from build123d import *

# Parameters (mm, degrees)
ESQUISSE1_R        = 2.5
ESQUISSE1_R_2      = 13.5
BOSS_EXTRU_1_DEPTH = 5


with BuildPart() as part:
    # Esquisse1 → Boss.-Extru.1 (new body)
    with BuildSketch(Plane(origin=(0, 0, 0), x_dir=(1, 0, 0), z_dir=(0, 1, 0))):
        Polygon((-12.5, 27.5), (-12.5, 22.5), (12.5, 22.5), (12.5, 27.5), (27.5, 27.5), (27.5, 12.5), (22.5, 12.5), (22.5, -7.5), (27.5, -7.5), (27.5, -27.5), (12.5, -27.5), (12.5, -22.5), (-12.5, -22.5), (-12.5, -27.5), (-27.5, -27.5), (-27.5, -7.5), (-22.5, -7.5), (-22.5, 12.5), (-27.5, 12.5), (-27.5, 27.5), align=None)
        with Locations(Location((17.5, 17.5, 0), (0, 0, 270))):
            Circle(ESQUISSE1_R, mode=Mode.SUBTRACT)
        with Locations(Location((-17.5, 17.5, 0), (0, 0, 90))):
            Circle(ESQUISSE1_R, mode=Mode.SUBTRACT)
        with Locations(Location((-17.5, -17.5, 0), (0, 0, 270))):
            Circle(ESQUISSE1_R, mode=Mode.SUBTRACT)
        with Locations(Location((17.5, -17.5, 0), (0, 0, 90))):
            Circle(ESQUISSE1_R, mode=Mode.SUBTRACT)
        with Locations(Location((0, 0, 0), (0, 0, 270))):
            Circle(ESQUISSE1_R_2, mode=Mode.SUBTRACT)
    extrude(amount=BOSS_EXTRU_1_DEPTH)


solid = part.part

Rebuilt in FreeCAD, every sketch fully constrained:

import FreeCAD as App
import Part
import Sketcher

doc = App.newDocument("Part")
body = doc.addObject("PartDesign::Body", "Body")

# Sketch on XZ plane
sketch1 = body.newObject("Sketcher::SketchObject", "Sketch")
sketch1.AttachmentSupport = (doc.getObject("XZ_Plane"), [""])
sketch1.MapMode = "FlatFace"
sketch1.addGeometry([
    Part.LineSegment(App.Vector(-12.5, -22.5, 0), App.Vector(-12.5, -27.5, 0)),  # 0
    Part.LineSegment(App.Vector(-12.5, -27.5, 0), App.Vector(-27.5, -27.5, 0)),  # 1
    Part.LineSegment(App.Vector(-27.5, -27.5, 0), App.Vector(-27.5, -12.5, 0)),  # 2
    Part.LineSegment(App.Vector(-27.5, -12.5, 0), App.Vector(-22.5, -12.5, 0)),  # 3
    Part.LineSegment(App.Vector(-22.5, -12.5, 0), App.Vector(-22.5, 7.5, 0)),  # 4
    Part.LineSegment(App.Vector(-22.5, 7.5, 0), App.Vector(-27.5, 7.5, 0)),  # 5
    Part.LineSegment(App.Vector(-27.5, 7.5, 0), App.Vector(-27.5, 27.5, 0)),  # 6
    Part.LineSegment(App.Vector(-27.5, 27.5, 0), App.Vector(-12.5, 27.5, 0)),  # 7
    Part.LineSegment(App.Vector(-12.5, 27.5, 0), App.Vector(-12.5, 22.5, 0)),  # 8
    Part.LineSegment(App.Vector(-12.5, 22.5, 0), App.Vector(12.5, 22.5, 0)),  # 9
    Part.LineSegment(App.Vector(12.5, 22.5, 0), App.Vector(12.5, 27.5, 0)),  # 10
    Part.LineSegment(App.Vector(12.5, 27.5, 0), App.Vector(27.5, 27.5, 0)),  # 11
    Part.LineSegment(App.Vector(27.5, 27.5, 0), App.Vector(27.5, 7.5, 0)),  # 12
    Part.LineSegment(App.Vector(27.5, 7.5, 0), App.Vector(22.5, 7.5, 0)),  # 13
    Part.LineSegment(App.Vector(22.5, 7.5, 0), App.Vector(22.5, -12.5, 0)),  # 14
    Part.LineSegment(App.Vector(22.5, -12.5, 0), App.Vector(27.5, -12.5, 0)),  # 15
    Part.LineSegment(App.Vector(27.5, -12.5, 0), App.Vector(27.5, -27.5, 0)),  # 16
    Part.LineSegment(App.Vector(27.5, -27.5, 0), App.Vector(12.5, -27.5, 0)),  # 17
    Part.LineSegment(App.Vector(12.5, -27.5, 0), App.Vector(12.5, -22.5, 0)),  # 18
    Part.LineSegment(App.Vector(12.5, -22.5, 0), App.Vector(-12.5, -22.5, 0)),  # 19
    Part.Circle(App.Vector(17.5, 17.5, 0), App.Vector(0, 0, 1), 2.5),  # 20
    Part.Circle(App.Vector(-17.5, 17.5, 0), App.Vector(0, 0, 1), 2.5),  # 21
    Part.Circle(App.Vector(17.5, -17.5, 0), App.Vector(0, 0, 1), 2.5),  # 22
    Part.Circle(App.Vector(0, 0, 0), App.Vector(0, 0, 1), 13.5),  # 23
    Part.Circle(App.Vector(-17.5, -17.5, 0), App.Vector(0, 0, 1), 2.5),  # 24
], False)
sketch1.addConstraint([
    Sketcher.Constraint("Coincident", 0, 2, 1, 1),
    Sketcher.Constraint("Coincident", 1, 2, 2, 1),
    Sketcher.Constraint("Coincident", 2, 2, 3, 1),
    Sketcher.Constraint("Coincident", 3, 2, 4, 1),
    Sketcher.Constraint("Coincident", 4, 2, 5, 1),
    Sketcher.Constraint("Coincident", 5, 2, 6, 1),
    Sketcher.Constraint("Coincident", 6, 2, 7, 1),
    Sketcher.Constraint("Coincident", 7, 2, 8, 1),
    Sketcher.Constraint("Coincident", 8, 2, 9, 1),
    Sketcher.Constraint("Coincident", 9, 2, 10, 1),
    Sketcher.Constraint("Coincident", 10, 2, 11, 1),
    Sketcher.Constraint("Coincident", 11, 2, 12, 1),
    Sketcher.Constraint("Coincident", 12, 2, 13, 1),
    Sketcher.Constraint("Coincident", 13, 2, 14, 1),
    Sketcher.Constraint("Coincident", 14, 2, 15, 1),
    Sketcher.Constraint("Coincident", 15, 2, 16, 1),
    Sketcher.Constraint("Coincident", 16, 2, 17, 1),
    Sketcher.Constraint("Coincident", 17, 2, 18, 1),
    Sketcher.Constraint("Coincident", 18, 2, 19, 1),
    Sketcher.Constraint("Coincident", 19, 2, 0, 1),
    Sketcher.Constraint("Vertical", 0),
    Sketcher.Constraint("Horizontal", 1),
    Sketcher.Constraint("Vertical", 2),
    Sketcher.Constraint("Horizontal", 3),
    Sketcher.Constraint("Vertical", 4),
    Sketcher.Constraint("Horizontal", 5),
    Sketcher.Constraint("Vertical", 6),
    Sketcher.Constraint("Horizontal", 7),
    Sketcher.Constraint("Vertical", 8),
    Sketcher.Constraint("Horizontal", 9),
    Sketcher.Constraint("Vertical", 10),
    Sketcher.Constraint("Horizontal", 11),
    Sketcher.Constraint("Vertical", 12),
    Sketcher.Constraint("Horizontal", 13),
    Sketcher.Constraint("Vertical", 14),
    Sketcher.Constraint("Horizontal", 15),
    Sketcher.Constraint("Vertical", 16),
    Sketcher.Constraint("Horizontal", 17),
    Sketcher.Constraint("Vertical", 18),
    Sketcher.Constraint("Horizontal", 19),
    Sketcher.Constraint("Coincident", 23, 3, -1, 1),
    Sketcher.Constraint("Equal", 20, 21),
    Sketcher.Constraint("Equal", 21, 22),
    Sketcher.Constraint("Equal", 22, 24),
    Sketcher.Constraint("Symmetric", 21, 3, 22, 3, -1, 1),
    Sketcher.Constraint("Symmetric", 20, 3, 24, 3, -1, 1),
    Sketcher.Constraint("Symmetric", 0, 2, 10, 2, -1, 1),
    Sketcher.Constraint("Symmetric", 6, 2, 16, 2, -1, 1),
    Sketcher.Constraint("Symmetric", 8, 2, 18, 2, -1, 1),
    Sketcher.Constraint("Symmetric", 20, 3, 21, 3, -2),
    Sketcher.Constraint("Symmetric", 7, 2, 10, 2, -2),
    Sketcher.Constraint("Symmetric", 5, 2, 12, 2, -2),
    Sketcher.Constraint("Symmetric", 3, 2, 14, 2, -2),
    Sketcher.Constraint("Vertical", 2, 2, 5, 2),
    Sketcher.Constraint("Equal", 15, 0),
    Sketcher.Constraint("Equal", 17, 2),
    Sketcher.Constraint("Equal", 4, 6),
    Sketcher.Constraint("Diameter", 20, 5.0),
    Sketcher.Constraint("Diameter", 23, 27.0),
    Sketcher.Constraint("DistanceX", 1, 2, 1, 1, 15.0),
    Sketcher.Constraint("DistanceX", 3, 1, 3, 2, 5.0),
    Sketcher.Constraint("DistanceX", 9, 1, 9, 2, 25.0),
    Sketcher.Constraint("DistanceY", 4, 1, 4, 2, 20.0),
    Sketcher.Constraint("DistanceX", 21, 3, 20, 3, 35.0),
    Sketcher.Constraint("DistanceY", 22, 3, 20, 3, 35.0),
])
pad1 = body.newObject("PartDesign::Pad", "Pad")
pad1.Profile = sketch1
pad1.Length = 5
pad1.Reversed = True

doc.recompute()
